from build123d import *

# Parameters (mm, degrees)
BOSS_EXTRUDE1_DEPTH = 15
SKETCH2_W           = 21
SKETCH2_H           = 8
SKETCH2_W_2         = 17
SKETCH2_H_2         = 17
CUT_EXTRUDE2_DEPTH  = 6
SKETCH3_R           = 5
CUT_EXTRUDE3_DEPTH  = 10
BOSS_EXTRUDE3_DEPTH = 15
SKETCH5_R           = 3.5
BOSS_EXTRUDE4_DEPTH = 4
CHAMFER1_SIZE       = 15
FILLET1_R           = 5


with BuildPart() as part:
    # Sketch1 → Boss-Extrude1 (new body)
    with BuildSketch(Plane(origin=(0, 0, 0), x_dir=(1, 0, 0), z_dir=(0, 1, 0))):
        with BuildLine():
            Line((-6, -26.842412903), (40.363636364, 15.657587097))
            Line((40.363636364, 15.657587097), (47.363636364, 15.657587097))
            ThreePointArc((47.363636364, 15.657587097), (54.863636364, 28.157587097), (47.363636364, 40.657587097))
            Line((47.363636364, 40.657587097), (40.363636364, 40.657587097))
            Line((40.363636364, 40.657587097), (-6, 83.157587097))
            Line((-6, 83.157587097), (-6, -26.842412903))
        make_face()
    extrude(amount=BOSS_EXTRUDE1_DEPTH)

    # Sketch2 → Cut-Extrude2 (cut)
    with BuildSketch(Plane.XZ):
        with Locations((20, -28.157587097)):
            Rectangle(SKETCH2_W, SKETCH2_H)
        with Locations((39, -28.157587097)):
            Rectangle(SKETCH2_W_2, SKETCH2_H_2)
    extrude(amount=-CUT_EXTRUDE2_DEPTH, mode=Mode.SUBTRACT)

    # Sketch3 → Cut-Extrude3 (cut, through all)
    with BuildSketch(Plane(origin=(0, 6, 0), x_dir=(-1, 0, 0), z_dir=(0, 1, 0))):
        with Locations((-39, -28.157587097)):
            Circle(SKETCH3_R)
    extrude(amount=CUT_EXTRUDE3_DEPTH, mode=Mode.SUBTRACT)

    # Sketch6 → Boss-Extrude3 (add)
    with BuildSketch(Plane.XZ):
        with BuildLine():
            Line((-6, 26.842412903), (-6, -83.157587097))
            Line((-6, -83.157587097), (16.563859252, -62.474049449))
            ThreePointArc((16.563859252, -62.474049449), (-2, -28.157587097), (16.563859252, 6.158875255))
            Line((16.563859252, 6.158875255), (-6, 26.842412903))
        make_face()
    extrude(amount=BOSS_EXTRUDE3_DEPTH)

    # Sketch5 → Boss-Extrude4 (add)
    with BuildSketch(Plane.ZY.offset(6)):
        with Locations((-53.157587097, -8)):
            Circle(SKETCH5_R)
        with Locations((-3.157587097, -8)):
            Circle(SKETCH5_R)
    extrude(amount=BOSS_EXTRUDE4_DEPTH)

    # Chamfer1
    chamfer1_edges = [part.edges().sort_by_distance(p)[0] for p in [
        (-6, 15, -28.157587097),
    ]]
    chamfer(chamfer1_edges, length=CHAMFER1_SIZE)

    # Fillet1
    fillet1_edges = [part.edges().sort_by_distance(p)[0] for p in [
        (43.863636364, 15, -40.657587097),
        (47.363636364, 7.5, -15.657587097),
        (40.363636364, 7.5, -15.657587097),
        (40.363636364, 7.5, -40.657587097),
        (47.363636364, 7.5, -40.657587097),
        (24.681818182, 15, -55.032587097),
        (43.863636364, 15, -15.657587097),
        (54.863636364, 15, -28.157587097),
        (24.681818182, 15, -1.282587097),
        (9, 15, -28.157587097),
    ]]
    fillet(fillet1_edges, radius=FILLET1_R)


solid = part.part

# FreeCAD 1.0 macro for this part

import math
import FreeCAD as App
import Part
import Sketcher
from FreeCAD import Vector


def edges_at(feature, points):
    """Names of the edges that pass closest to the given points."""
    edges = feature.Shape.Edges
    near = lambda p: min(range(len(edges)), key=lambda i: edges[i].distToShape(Part.Vertex(*p))[0])
    return sorted({f"Edge{near(p) + 1}" for p in points})

doc = App.newDocument("Part")
body = doc.addObject("PartDesign::Body", "Body")

# Sketch on XZ plane
sketch1 = body.newObject("Sketcher::SketchObject", "Sketch")
sketch1.AttachmentSupport = (doc.getObject("XZ_Plane"), [""])
sketch1.MapMode = "FlatFace"
sketch1.addGeometry(Part.LineSegment(Vector(-6, 27, 0), Vector(40, -16, 0)), False)
sketch1.addGeometry(Part.LineSegment(Vector(40, -16, 0), Vector(47, -16, 0)), False)
sketch1.addGeometry(Part.ArcOfCircle(Part.Circle(Vector(41, -28, 0), Vector(0, 0, 1), 14), math.radians(-62), math.radians(62)), False)
sketch1.addGeometry(Part.LineSegment(Vector(47, -41, 0), Vector(40, -41, 0)), False)
sketch1.addGeometry(Part.LineSegment(Vector(40, -41, 0), Vector(-6, -83, 0)), False)
sketch1.addGeometry(Part.LineSegment(Vector(-6, -83, 0), Vector(-6, 27, 0)), False)
sketch1.addConstraint(Sketcher.Constraint("Coincident", 0, 2, 1, 1))
sketch1.addConstraint(Sketcher.Constraint("Coincident", 1, 2, 2, 2))
sketch1.addConstraint(Sketcher.Constraint("Coincident", 2, 1, 3, 1))
sketch1.addConstraint(Sketcher.Constraint("Coincident", 3, 2, 4, 1))
sketch1.addConstraint(Sketcher.Constraint("Coincident", 4, 2, 5, 1))
sketch1.addConstraint(Sketcher.Constraint("Coincident", 5, 2, 0, 1))
sketch1.addConstraint(Sketcher.Constraint("Horizontal", 1))
sketch1.addConstraint(Sketcher.Constraint("Horizontal", 3))
sketch1.addConstraint(Sketcher.Constraint("Vertical", 5))
sketch1.addConstraint(Sketcher.Constraint("Vertical", 1, 2, 2, 1))
sketch1.addConstraint(Sketcher.Constraint("Vertical", 0, 2, 3, 2))
sketch1.addConstraint(Sketcher.Constraint("Equal", 0, 4))
sketch1.addConstraint(Sketcher.Constraint("DistanceX", 1, 1, 1, 2, 7.0))
sketch1.addConstraint(Sketcher.Constraint("DistanceY", 5, 1, 5, 2, 110.0))
sketch1.addConstraint(Sketcher.Constraint("DistanceX", 4, 2, -1, 1, 6.0))
sketch1.addConstraint(Sketcher.Constraint("DistanceY", 2, 1, 1, 2, 25.0))
sketch1.addConstraint(Sketcher.Constraint("Radius", 2, 14.166667))
sketch1.addConstraint(Sketcher.Constraint("DistanceX", -1, 1, 2, 3, 40.69697))
sketch1.addConstraint(Sketcher.Constraint("DistanceY", 2, 3, -1, 1, 28.157587))
pad1 = body.newObject("PartDesign::Pad", "Pad")
pad1.Profile = sketch1
pad1.Length = 15
pad1.Reversed = True

# Sketch on XZ plane
sketch2 = body.newObject("Sketcher::SketchObject", "Sketch001")
sketch2.AttachmentSupport = (doc.getObject("XZ_Plane"), [""])
sketch2.MapMode = "FlatFace"
sketch2.addGeometry(Part.LineSegment(Vector(9.5, -24.2, 0), Vector(9.5, -32.2, 0)), False)
sketch2.addGeometry(Part.LineSegment(Vector(9.5, -32.2, 0), Vector(30.5, -32.2, 0)), False)
sketch2.addGeometry(Part.LineSegment(Vector(30.5, -32.2, 0), Vector(30.5, -36.7, 0)), False)
sketch2.addGeometry(Part.LineSegment(Vector(30.5, -36.7, 0), Vector(47.5, -36.7, 0)), False)
sketch2.addGeometry(Part.LineSegment(Vector(47.5, -36.7, 0), Vector(47.5, -19.7, 0)), False)
sketch2.addGeometry(Part.LineSegment(Vector(47.5, -19.7, 0), Vector(30.5, -19.7, 0)), False)
sketch2.addGeometry(Part.LineSegment(Vector(30.5, -19.7, 0), Vector(30.5, -24.2, 0)), False)
sketch2.addGeometry(Part.LineSegment(Vector(30.5, -24.2, 0), Vector(9.5, -24.2, 0)), False)
sketch2.addConstraint(Sketcher.Constraint("Coincident", 0, 2, 1, 1))
sketch2.addConstraint(Sketcher.Constraint("Coincident", 1, 2, 2, 1))
sketch2.addConstraint(Sketcher.Constraint("Coincident", 2, 2, 3, 1))
sketch2.addConstraint(Sketcher.Constraint("Coincident", 3, 2, 4, 1))
sketch2.addConstraint(Sketcher.Constraint("Coincident", 4, 2, 5, 1))
sketch2.addConstraint(Sketcher.Constraint("Coincident", 5, 2, 6, 1))
sketch2.addConstraint(Sketcher.Constraint("Coincident", 6, 2, 7, 1))
sketch2.addConstraint(Sketcher.Constraint("Coincident", 7, 2, 0, 1))
sketch2.addConstraint(Sketcher.Constraint("Vertical", 0))
sketch2.addConstraint(Sketcher.Constraint("Horizontal", 1))
sketch2.addConstraint(Sketcher.Constraint("Vertical", 2))
sketch2.addConstraint(Sketcher.Constraint("Horizontal", 3))
sketch2.addConstraint(Sketcher.Constraint("Vertical", 4))
sketch2.addConstraint(Sketcher.Constraint("Horizontal", 5))
sketch2.addConstraint(Sketcher.Constraint("Vertical", 6))
sketch2.addConstraint(Sketcher.Constraint("Horizontal", 7))
sketch2.addConstraint(Sketcher.Constraint("Vertical", 2, 2, 5, 2))
sketch2.addConstraint(Sketcher.Constraint("Equal", 5, 4))
sketch2.addConstraint(Sketcher.Constraint("Equal", 2, 6))
sketch2.addConstraint(Sketcher.Constraint("DistanceX", 1, 1, 1, 2, 21.0))
sketch2.addConstraint(Sketcher.Constraint("DistanceX", 3, 1, 3, 2, 17.0))
sketch2.addConstraint(Sketcher.Constraint("DistanceY", 0, 2, 0, 1, 8.0))
sketch2.addConstraint(Sketcher.Constraint("DistanceX", -1, 1, 0, 2, 9.5))
sketch2.addConstraint(Sketcher.Constraint("DistanceY", 0, 2, -1, 1, 32.157587))
pocket1 = body.newObject("PartDesign::Pocket", "Pocket")
pocket1.Profile = sketch2
pocket1.Length = 6

# Sketch on XZ plane
sketch3 = body.newObject("Sketcher::SketchObject", "Sketch002")
sketch3.AttachmentSupport = (doc.getObject("XZ_Plane"), [""])
sketch3.MapMode = "FlatFace"
sketch3.AttachmentOffset = App.Placement(Vector(0, 0, -6), App.Rotation())
sketch3.addGeometry(Part.Circle(Vector(39, -28, 0), Vector(0, 0, 1), 5), False)
sketch3.addConstraint(Sketcher.Constraint("Diameter", 0, 10.0))
sketch3.addConstraint(Sketcher.Constraint("DistanceX", -1, 1, 0, 3, 39.0))
sketch3.addConstraint(Sketcher.Constraint("DistanceY", 0, 3, -1, 1, 28.157587))
pocket2 = body.newObject("PartDesign::Pocket", "Pocket001")
pocket2.Profile = sketch3
pocket2.Type = "ThroughAll"

# Sketch on XZ plane
sketch4 = body.newObject("Sketcher::SketchObject", "Sketch003")
sketch4.AttachmentSupport = (doc.getObject("XZ_Plane"), [""])
sketch4.MapMode = "FlatFace"
sketch4.addGeometry(Part.LineSegment(Vector(-6, 27, 0), Vector(-6, -83, 0)), False)
sketch4.addGeometry(Part.LineSegment(Vector(-6, -83, 0), Vector(17, -62, 0)), False)
sketch4.addGeometry(Part.ArcOfCircle(Part.Circle(Vector(39, -28, 0), Vector(0, 0, 1), 41), math.radians(123), math.radians(237)), False)
sketch4.addGeometry(Part.LineSegment(Vector(17, 6, 0), Vector(-6, 27, 0)), False)
sketch4.addConstraint(Sketcher.Constraint("Coincident", 0, 2, 1, 1))
sketch4.addConstraint(Sketcher.Constraint("Coincident", 1, 2, 2, 2))
sketch4.addConstraint(Sketcher.Constraint("Coincident", 2, 1, 3, 1))
sketch4.addConstraint(Sketcher.Constraint("Coincident", 3, 2, 0, 1))
sketch4.addConstraint(Sketcher.Constraint("Vertical", 0))
sketch4.addConstraint(Sketcher.Constraint("Vertical", 1, 2, 2, 1))
sketch4.addConstraint(Sketcher.Constraint("Equal", 1, 3))
sketch4.addConstraint(Sketcher.Constraint("Radius", 2, 41.0))
sketch4.addConstraint(Sketcher.Constraint("DistanceY", 0, 2, 0, 1, 110.0))
sketch4.addConstraint(Sketcher.Constraint("DistanceX", -1, 1, 2, 3, 39.0))
sketch4.addConstraint(Sketcher.Constraint("DistanceX", 0, 2, -1, 1, 6.0))
sketch4.addConstraint(Sketcher.Constraint("Distance", 1, 30.609418))
sketch4.addConstraint(Sketcher.Constraint("DistanceY", 1, 2, -1, 1, 62.474049))
pad2 = body.newObject("PartDesign::Pad", "Pad001")
pad2.Profile = sketch4
pad2.Length = 15

# Sketch on YZ plane
sketch5 = body.newObject("Sketcher::SketchObject", "Sketch004")
sketch5.AttachmentSupport = (doc.getObject("YZ_Plane"), [""])
sketch5.MapMode = "FlatFace"
sketch5.AttachmentOffset = App.Placement(Vector(0, 0, -6), App.Rotation())
sketch5.addGeometry(Part.Circle(Vector(-8, -53.2, 0), Vector(0, 0, 1), 3.5), False)
sketch5.addGeometry(Part.Circle(Vector(-8, -3.2, 0), Vector(0, 0, 1), 3.5), False)
sketch5.addConstraint(Sketcher.Constraint("Equal", 0, 1))
sketch5.addConstraint(Sketcher.Constraint("Vertical", 0, 3, 1, 3))
sketch5.addConstraint(Sketcher.Constraint("Diameter", 0, 7.0))
sketch5.addConstraint(Sketcher.Constraint("DistanceX", 0, 3, -1, 1, 8.0))
sketch5.addConstraint(Sketcher.Constraint("DistanceY", 0, 3, 1, 3, 50.0))
sketch5.addConstraint(Sketcher.Constraint("DistanceY", 0, 3, -1, 1, 53.157587))
pad3 = body.newObject("PartDesign::Pad", "Pad002")
pad3.Profile = sketch5
pad3.Length = 4
pad3.Reversed = True
doc.recompute()

chamfer = body.newObject("PartDesign::Chamfer", "Chamfer")
chamfer.Base = (pad3, edges_at(pad3, [(-6, 15, -28.158)]))
chamfer.Size = 15
doc.recompute()

fillet = body.newObject("PartDesign::Fillet", "Fillet")
fillet.Base = (chamfer, edges_at(chamfer, [
    (43.864, 15, -40.658),
    (47.364, 7.5, -15.658),
    (40.364, 7.5, -15.658),
    (40.364, 7.5, -40.658),
    (47.364, 7.5, -40.658),
    (24.682, 15, -55.033),
    (43.864, 15, -15.658),
    (54.864, 15, -28.158),
    (24.682, 15, -1.283),
    (9, 15, -28.158),
]))
fillet.Radius = 5

doc.recompute()
